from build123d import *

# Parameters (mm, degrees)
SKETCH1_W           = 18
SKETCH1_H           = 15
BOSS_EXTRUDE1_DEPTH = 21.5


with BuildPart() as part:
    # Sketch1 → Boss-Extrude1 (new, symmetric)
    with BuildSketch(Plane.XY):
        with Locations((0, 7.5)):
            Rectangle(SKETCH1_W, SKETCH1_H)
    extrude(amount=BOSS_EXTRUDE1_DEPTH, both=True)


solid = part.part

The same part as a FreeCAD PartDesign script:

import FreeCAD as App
import Part
import Sketcher
Q = App.Units.Quantity

doc = App.newDocument("Part")
body = doc.addObject("PartDesign::Body", "Body")

# Sketch on XY plane
sketch1 = body.newObject("Sketcher::SketchObject", "Sketch")
sketch1.AttachmentSupport = (doc.getObject("XY_Plane"), [""])
sketch1.MapMode = "FlatFace"
sketch1.addGeometry([
    Part.LineSegment(App.Vector(-9, 15, 0), App.Vector(-9, 0, 0)),
    Part.LineSegment(App.Vector(-9, 0, 0), App.Vector(9, 0, 0)),
    Part.LineSegment(App.Vector(9, 0, 0), App.Vector(9, 15, 0)),
    Part.LineSegment(App.Vector(9, 15, 0), App.Vector(-9, 15, 0)),
], False)
sketch1.addConstraint([
    Sketcher.Constraint("Coincident", 0, 2, 1, 1),
    Sketcher.Constraint("Coincident", 1, 2, 2, 1),
    Sketcher.Constraint("Coincident", 2, 2, 3, 1),
    Sketcher.Constraint("Coincident", 3, 2, 0, 1),
    Sketcher.Constraint("Vertical", 0),
    Sketcher.Constraint("Horizontal", 1),
    Sketcher.Constraint("Vertical", 2),
    Sketcher.Constraint("Horizontal", 3),
    Sketcher.Constraint("Symmetric", 0, 2, 1, 2, -1, 1),
    Sketcher.Constraint("DistanceX", 1, 1, 1, 2, Q("18 mm")),
    Sketcher.Constraint("DistanceY", 0, 2, 0, 1, Q("15 mm")),
])
pad1 = body.newObject("PartDesign::Pad", "Pad")
pad1.Profile = sketch1
pad1.Length = 43
pad1.Midplane = True

doc.recompute()
